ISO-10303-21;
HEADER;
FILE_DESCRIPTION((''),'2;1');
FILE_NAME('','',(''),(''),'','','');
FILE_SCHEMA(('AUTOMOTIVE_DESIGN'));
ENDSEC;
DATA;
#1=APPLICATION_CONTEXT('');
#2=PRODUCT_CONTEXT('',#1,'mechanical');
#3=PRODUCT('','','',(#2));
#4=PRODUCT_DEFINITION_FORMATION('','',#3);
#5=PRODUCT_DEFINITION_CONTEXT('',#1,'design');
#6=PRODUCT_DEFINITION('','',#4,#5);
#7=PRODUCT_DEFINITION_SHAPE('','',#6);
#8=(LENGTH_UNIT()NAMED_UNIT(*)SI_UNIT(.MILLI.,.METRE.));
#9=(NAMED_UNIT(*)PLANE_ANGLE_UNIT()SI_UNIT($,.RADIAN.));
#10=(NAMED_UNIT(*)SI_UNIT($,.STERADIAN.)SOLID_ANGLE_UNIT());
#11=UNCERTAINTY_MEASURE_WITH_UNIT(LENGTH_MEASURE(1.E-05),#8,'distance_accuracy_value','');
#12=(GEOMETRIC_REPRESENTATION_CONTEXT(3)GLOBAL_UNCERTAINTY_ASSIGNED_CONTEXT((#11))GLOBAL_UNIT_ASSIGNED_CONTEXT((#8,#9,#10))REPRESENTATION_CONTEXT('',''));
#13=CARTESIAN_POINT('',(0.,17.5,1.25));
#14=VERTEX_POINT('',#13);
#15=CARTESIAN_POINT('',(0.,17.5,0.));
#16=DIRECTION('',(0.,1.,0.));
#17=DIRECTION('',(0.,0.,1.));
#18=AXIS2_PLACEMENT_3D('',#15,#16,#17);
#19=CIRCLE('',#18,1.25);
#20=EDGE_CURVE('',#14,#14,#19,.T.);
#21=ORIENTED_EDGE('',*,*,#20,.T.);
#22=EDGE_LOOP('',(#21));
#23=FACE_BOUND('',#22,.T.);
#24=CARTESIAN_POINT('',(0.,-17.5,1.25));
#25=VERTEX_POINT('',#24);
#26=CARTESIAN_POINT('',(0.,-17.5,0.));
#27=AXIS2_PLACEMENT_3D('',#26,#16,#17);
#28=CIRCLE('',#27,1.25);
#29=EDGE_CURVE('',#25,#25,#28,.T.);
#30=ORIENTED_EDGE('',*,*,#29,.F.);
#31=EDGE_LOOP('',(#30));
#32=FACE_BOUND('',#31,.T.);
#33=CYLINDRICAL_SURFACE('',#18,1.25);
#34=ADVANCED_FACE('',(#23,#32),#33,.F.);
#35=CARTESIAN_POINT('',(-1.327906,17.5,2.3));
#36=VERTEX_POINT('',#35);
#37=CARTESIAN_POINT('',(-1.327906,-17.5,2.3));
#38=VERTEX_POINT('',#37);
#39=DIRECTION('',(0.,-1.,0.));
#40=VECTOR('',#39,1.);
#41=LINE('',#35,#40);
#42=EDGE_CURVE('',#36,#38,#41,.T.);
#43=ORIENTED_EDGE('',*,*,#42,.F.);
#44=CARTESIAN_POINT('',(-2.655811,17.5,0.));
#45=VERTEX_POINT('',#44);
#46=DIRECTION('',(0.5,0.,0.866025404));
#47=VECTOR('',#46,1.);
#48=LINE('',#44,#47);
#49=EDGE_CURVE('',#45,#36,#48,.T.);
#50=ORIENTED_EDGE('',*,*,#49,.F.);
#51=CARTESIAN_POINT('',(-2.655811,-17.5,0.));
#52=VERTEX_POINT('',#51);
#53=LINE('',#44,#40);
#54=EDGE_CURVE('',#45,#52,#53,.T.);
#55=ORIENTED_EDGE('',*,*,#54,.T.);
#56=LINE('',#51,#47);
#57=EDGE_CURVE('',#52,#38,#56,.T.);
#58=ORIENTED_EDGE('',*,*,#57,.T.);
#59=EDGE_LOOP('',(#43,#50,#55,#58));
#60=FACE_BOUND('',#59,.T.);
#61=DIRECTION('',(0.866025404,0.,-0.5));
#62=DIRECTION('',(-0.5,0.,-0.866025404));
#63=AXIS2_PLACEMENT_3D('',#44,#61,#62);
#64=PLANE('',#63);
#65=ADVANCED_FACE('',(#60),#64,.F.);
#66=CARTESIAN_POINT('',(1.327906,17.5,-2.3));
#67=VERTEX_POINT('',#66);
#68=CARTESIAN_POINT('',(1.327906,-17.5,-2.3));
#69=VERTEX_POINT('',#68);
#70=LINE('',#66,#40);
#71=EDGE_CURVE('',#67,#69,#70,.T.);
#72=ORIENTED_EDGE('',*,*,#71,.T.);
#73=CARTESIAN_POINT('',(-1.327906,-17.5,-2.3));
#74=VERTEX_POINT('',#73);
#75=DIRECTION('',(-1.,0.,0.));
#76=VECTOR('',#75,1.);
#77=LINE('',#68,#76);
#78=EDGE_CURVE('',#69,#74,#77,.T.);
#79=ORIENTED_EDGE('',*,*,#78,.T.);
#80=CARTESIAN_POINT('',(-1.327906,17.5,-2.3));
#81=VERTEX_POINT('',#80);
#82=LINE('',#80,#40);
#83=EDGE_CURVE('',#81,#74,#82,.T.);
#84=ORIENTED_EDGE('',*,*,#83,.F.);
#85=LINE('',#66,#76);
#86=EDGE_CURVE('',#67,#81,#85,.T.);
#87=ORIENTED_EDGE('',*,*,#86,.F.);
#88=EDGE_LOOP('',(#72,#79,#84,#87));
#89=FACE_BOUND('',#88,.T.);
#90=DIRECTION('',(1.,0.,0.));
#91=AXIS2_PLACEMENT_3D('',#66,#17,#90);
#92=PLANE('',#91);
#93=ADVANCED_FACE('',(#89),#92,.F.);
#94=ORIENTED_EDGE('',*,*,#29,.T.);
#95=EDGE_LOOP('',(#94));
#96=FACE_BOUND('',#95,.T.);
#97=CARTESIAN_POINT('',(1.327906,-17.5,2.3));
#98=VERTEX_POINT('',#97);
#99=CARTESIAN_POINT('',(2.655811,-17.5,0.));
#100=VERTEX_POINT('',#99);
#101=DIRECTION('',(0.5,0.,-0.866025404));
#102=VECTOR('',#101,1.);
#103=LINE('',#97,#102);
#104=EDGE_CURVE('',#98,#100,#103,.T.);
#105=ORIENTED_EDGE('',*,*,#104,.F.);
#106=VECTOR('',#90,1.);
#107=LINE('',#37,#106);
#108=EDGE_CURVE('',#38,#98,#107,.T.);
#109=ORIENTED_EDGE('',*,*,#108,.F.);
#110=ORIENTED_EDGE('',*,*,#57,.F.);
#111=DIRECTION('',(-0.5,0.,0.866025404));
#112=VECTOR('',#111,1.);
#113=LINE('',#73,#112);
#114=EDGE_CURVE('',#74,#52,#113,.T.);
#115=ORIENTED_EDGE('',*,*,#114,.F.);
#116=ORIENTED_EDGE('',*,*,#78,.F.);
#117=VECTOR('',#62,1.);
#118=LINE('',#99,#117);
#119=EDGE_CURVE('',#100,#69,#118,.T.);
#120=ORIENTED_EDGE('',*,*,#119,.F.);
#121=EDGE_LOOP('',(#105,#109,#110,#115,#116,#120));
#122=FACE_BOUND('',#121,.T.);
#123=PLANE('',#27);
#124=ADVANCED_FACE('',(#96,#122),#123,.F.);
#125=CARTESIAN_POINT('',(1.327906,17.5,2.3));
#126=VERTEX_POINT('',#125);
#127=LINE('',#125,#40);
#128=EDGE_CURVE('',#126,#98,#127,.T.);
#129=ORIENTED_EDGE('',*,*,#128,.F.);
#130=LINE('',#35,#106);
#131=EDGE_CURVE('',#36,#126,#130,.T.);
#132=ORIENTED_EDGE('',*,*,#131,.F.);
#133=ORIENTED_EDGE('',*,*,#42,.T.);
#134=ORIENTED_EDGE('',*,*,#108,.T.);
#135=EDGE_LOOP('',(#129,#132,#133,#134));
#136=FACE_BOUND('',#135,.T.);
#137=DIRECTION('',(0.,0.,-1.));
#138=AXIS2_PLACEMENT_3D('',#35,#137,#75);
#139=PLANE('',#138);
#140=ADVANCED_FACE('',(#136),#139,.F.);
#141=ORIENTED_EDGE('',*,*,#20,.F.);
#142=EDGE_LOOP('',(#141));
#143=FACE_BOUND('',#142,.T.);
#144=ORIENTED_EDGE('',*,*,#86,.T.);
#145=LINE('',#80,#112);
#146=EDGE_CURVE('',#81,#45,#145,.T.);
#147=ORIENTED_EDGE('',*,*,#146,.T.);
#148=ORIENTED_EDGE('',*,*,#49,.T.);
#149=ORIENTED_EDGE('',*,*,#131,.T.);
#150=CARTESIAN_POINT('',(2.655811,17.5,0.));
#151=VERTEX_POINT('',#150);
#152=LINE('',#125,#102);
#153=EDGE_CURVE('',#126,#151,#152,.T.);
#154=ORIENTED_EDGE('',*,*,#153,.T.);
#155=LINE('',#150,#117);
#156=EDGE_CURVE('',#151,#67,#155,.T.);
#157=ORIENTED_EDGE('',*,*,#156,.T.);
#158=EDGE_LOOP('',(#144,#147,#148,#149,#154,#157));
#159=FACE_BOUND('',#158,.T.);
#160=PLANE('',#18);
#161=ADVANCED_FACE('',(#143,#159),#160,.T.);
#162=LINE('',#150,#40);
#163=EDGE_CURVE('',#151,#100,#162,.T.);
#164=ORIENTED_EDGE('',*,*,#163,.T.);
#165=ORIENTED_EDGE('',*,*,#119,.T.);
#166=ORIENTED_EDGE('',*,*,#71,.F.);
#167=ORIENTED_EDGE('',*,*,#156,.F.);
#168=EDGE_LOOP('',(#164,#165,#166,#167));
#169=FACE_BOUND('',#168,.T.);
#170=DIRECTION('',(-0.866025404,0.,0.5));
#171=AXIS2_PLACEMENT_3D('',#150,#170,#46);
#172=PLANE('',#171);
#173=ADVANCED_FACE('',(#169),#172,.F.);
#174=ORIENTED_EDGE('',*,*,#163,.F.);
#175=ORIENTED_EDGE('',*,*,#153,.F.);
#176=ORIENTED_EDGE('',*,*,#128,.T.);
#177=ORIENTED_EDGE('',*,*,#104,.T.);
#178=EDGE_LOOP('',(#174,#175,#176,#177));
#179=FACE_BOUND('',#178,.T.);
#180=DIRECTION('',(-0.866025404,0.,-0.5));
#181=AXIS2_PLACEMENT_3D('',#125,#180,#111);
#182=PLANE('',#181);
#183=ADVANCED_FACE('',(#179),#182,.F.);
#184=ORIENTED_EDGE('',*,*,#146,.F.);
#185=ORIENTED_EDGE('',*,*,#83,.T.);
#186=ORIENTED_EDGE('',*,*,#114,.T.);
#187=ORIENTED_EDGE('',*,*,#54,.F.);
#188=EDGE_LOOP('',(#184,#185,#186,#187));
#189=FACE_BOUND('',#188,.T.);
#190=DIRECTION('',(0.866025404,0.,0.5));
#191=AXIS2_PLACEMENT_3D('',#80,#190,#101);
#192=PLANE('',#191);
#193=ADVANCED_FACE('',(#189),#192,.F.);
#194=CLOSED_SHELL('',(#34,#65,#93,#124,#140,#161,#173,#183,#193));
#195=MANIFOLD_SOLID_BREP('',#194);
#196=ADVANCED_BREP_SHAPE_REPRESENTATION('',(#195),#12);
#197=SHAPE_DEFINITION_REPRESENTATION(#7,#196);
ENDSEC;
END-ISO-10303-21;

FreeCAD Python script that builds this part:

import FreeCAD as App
import Part
import Sketcher

V = App.Vector
Q = App.Units.Quantity

doc = App.newDocument("Part")
body = doc.addObject("PartDesign::Body", "Body")

sketch1 = doc.addObject("Sketcher::SketchObject", "Sketch")
body.addObject(sketch1)
sketch1.AttachmentSupport = (doc.XZ_Plane, [""])
sketch1.MapMode = "FlatFace"
sketch1.addGeometry(Part.LineSegment(V(1.327906, 2.3, 0), V(2.655811, 0, 0)), False)
sketch1.addGeometry(Part.LineSegment(V(2.655811, 0, 0), V(1.327906, -2.3, 0)), False)
sketch1.addGeometry(Part.LineSegment(V(1.327906, -2.3, 0), V(-1.327906, -2.3, 0)), False)
sketch1.addGeometry(Part.LineSegment(V(-1.327906, -2.3, 0), V(-2.655811, 0, 0)), False)
sketch1.addGeometry(Part.LineSegment(V(-2.655811, 0, 0), V(-1.327906, 2.3, 0)), False)
sketch1.addGeometry(Part.LineSegment(V(-1.327906, 2.3, 0), V(1.327906, 2.3, 0)), False)
sketch1.addConstraint(Sketcher.Constraint("Coincident", 0, 2, 1, 1))
sketch1.addConstraint(Sketcher.Constraint("Coincident", 1, 2, 2, 1))
sketch1.addConstraint(Sketcher.Constraint("Coincident", 2, 2, 3, 1))
sketch1.addConstraint(Sketcher.Constraint("Coincident", 3, 2, 4, 1))
sketch1.addConstraint(Sketcher.Constraint("Coincident", 4, 2, 5, 1))
sketch1.addConstraint(Sketcher.Constraint("Coincident", 5, 2, 0, 1))
sketch1.addConstraint(Sketcher.Constraint("Horizontal", 2))
sketch1.addConstraint(Sketcher.Constraint("Horizontal", 5))
sketch1.addConstraint(Sketcher.Constraint("Symmetric", 0, 2, 3, 2, -1, 1))
sketch1.addConstraint(Sketcher.Constraint("Symmetric", 1, 2, 4, 2, -1, 1))
sketch1.addConstraint(Sketcher.Constraint("PointOnObject", 0, 2, -1))
sketch1.addConstraint(Sketcher.Constraint("Parallel", 0, 3))
sketch1.addConstraint(Sketcher.Constraint("Vertical", 2, 2, 4, 2))
sketch1.addConstraint(Sketcher.Constraint("Angle", 0, Q("-60 deg")))
sketch1.addConstraint(Sketcher.Constraint("DistanceY", 1, 2, -1, 1, Q("2.3 mm")))
sketch1.addConstraint(Sketcher.Constraint("DistanceX", 2, 2, 2, 1, Q("2.655811 mm")))
pad1 = doc.addObject("PartDesign::Pad", "Pad")
body.addObject(pad1)
pad1.Profile = sketch1
pad1.Length = 35
pad1.Midplane = True

sketch2 = doc.addObject("Sketcher::SketchObject", "Sketch001")
body.addObject(sketch2)
sketch2.AttachmentSupport = (doc.YZ_Plane, [""])
sketch2.MapMode = "FlatFace"
sketch2.addGeometry(Part.LineSegment(V(-17.501, 0, 0), V(17.5, 0, 0)), False)
sketch2.addGeometry(Part.LineSegment(V(17.5, 0, 0), V(17.5, 1.25, 0)), False)
sketch2.addGeometry(Part.LineSegment(V(17.5, 1.25, 0), V(-17.501, 1.25, 0)), False)
sketch2.addGeometry(Part.LineSegment(V(-17.501, 1.25, 0), V(-17.501, 0, 0)), False)
sketch2.addConstraint(Sketcher.Constraint("Coincident", 0, 2, 1, 1))
sketch2.addConstraint(Sketcher.Constraint("Coincident", 1, 2, 2, 1))
sketch2.addConstraint(Sketcher.Constraint("Coincident", 2, 2, 3, 1))
sketch2.addConstraint(Sketcher.Constraint("Coincident", 3, 2, 0, 1))
sketch2.addConstraint(Sketcher.Constraint("Horizontal", 0))
sketch2.addConstraint(Sketcher.Constraint("Vertical", 1))
sketch2.addConstraint(Sketcher.Constraint("Horizontal", 2))
sketch2.addConstraint(Sketcher.Constraint("Vertical", 3))
sketch2.addConstraint(Sketcher.Constraint("PointOnObject", 0, 2, -1))
sketch2.addConstraint(Sketcher.Constraint("DistanceY", 1, 1, 1, 2, Q("1.25 mm")))
sketch2.addConstraint(Sketcher.Constraint("DistanceX", -1, 1, 0, 2, Q("17.5 mm")))
sketch2.addConstraint(Sketcher.Constraint("DistanceX", 0, 1, 0, 2, Q("35.001 mm")))
groove = doc.addObject("PartDesign::Groove", "Groove")
body.addObject(groove)
groove.Profile = sketch2
groove.ReferenceAxis = (sketch2, ["H_Axis"])
groove.Angle = 360

doc.recompute()
